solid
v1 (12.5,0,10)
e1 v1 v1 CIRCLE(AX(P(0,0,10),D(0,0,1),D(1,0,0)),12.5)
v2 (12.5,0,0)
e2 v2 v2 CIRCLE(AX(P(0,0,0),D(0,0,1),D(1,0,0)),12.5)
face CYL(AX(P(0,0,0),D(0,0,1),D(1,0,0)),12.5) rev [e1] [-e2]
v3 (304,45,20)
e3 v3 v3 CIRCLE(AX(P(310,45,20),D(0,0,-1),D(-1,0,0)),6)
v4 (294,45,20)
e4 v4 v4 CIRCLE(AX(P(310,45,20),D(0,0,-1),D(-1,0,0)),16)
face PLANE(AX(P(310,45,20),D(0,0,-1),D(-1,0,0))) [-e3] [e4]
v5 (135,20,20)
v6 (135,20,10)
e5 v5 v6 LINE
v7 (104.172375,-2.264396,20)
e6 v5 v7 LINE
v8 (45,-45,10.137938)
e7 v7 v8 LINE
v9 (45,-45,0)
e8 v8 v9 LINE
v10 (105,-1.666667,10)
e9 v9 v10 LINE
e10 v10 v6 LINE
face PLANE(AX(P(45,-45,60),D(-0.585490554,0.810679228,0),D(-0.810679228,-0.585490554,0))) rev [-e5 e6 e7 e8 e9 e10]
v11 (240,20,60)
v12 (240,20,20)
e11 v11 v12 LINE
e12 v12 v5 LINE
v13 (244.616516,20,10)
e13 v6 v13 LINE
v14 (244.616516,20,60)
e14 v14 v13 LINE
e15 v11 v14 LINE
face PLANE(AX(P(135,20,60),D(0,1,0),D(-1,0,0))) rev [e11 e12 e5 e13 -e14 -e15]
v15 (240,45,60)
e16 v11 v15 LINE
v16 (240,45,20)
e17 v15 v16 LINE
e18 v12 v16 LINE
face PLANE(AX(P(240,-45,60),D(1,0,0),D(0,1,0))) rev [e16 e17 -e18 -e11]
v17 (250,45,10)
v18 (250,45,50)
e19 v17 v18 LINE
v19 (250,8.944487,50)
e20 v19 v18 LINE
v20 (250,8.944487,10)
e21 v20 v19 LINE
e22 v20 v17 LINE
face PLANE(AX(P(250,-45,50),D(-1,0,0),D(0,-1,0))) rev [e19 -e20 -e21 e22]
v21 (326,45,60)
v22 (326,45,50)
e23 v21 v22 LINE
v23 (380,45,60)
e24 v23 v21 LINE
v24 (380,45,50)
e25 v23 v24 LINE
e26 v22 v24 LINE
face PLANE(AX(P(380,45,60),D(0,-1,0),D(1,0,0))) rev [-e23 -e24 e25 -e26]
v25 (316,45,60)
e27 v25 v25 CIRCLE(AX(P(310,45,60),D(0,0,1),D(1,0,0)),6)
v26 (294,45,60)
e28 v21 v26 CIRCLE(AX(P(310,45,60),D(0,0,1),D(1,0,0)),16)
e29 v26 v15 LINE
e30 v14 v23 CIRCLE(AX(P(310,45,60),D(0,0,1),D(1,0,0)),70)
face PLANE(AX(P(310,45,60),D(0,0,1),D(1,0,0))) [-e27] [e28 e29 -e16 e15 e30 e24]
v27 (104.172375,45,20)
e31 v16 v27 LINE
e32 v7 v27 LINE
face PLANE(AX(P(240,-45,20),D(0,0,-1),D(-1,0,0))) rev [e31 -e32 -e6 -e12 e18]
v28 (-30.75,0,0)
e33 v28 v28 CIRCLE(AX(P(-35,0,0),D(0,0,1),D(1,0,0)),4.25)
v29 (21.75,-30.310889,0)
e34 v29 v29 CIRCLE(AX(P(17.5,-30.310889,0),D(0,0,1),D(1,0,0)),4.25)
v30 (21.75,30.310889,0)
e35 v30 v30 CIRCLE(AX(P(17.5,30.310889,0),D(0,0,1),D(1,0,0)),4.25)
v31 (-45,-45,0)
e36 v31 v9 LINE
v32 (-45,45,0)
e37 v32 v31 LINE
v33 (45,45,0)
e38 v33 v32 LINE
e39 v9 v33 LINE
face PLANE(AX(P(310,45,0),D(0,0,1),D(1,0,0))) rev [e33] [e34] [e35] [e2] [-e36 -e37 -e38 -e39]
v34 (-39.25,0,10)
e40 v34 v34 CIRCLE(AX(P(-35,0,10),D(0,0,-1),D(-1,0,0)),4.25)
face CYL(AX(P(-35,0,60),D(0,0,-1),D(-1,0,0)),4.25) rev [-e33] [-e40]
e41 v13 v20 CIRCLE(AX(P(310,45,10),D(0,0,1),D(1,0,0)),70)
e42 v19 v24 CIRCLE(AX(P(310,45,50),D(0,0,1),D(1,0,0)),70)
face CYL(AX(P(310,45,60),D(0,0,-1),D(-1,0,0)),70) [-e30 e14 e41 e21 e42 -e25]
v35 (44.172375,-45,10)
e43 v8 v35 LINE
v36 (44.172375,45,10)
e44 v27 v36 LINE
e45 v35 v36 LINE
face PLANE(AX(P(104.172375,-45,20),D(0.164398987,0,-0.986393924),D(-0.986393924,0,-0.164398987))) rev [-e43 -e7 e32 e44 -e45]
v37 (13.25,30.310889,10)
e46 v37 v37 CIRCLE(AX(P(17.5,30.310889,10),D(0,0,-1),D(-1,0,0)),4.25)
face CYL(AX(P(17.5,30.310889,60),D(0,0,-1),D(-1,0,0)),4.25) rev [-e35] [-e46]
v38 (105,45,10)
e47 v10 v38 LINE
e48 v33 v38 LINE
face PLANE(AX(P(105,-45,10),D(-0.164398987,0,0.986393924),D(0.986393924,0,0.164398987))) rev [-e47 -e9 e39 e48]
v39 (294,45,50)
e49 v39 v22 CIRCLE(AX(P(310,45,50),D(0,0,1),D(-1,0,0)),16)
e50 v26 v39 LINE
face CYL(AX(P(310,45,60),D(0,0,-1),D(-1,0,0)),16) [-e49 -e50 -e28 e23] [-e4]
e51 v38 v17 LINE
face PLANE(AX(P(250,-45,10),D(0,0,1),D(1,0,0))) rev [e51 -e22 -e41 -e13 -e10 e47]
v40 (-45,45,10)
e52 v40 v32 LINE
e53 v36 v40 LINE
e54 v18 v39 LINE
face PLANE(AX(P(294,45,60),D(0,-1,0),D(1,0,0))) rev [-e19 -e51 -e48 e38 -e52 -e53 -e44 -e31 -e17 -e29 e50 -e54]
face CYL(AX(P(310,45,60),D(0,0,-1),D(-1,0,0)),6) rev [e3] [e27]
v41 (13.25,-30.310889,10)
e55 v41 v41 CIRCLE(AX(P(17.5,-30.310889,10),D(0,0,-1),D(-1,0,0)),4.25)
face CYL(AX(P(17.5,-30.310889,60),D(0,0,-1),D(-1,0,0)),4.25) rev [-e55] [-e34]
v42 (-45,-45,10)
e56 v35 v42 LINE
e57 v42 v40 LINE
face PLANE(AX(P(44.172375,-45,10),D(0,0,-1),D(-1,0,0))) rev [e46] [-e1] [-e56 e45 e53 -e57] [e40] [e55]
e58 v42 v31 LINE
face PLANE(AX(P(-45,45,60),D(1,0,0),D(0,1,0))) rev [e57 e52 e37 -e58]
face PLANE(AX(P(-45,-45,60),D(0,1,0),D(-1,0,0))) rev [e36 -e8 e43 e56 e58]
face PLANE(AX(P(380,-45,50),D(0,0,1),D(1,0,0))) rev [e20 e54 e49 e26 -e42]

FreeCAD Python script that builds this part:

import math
import FreeCAD as App
import Part
import Sketcher


def add_polygon(sketch, points):
    """Adds a closed chain of lines whose ends are joined by coincident constraints."""
    first, n = sketch.GeometryCount, len(points)
    for a, b in zip(points, points[1:] + points[:1]):
        sketch.addGeometry(Part.LineSegment(App.Vector(*a, 0), App.Vector(*b, 0)), False)
    for i in range(n):
        sketch.addConstraint(Sketcher.Constraint("Coincident", first + i, 2, first + (i + 1) % n, 1))

doc = App.newDocument("Part")
params = doc.addObject("Spreadsheet::Sheet", "Params")
for row, (alias, value) in enumerate([
    ("sketch1_diameter", "12 mm"),
    ("sketch1_radius", "16 mm"),
    ("sketch1_radius2", "70 mm"),
    ("sketch1_diameter2", "8.5 mm"),
    ("sketch1_width", "339 mm"),
    ("pad1_length", "60 mm"),
    ("sketch2_width", "32 mm"),
    ("sketch2_width2", "54 mm"),
    ("sketch2_width3", "335 mm"),
    ("sketch2_width4", "145 mm"),
    ("sketch2_width5", "44 mm"),
    ("sketch3_radius", "16 mm"),
    ("sketch3_radius2", "6 mm"),
    ("pocket2_length", "10 mm"),
    ("sketch4_radius", "70 mm"),
    ("sketch4_radius2", "16 mm"),
    ("pocket3_length", "40 mm"),
    ("sketch5_diameter", "25 mm"),
    ("sketch6_diameter", "32 mm"),
    ("sketch6_diameter2", "12 mm"),
    ("pocket5_length", "10 mm"),
], start=1):
    params.set(f"A{row}", alias)
    params.set(f"B{row}", "=" + value)
    params.setAlias(f"B{row}", alias)

body = doc.addObject("PartDesign::Body", "Body")

sketch1 = doc.addObject("Sketcher::SketchObject", "Sketch")
body.addObject(sketch1)
sketch1.AttachmentSupport = (doc.XY_Plane, [""])
sketch1.MapMode = "FlatFace"
sketch1.addGeometry([
    Part.LineSegment(App.Vector(380, 45, 0), App.Vector(326, 45, 0)),
    Part.ArcOfCircle(Part.Circle(App.Vector(310, 45, 0), App.Vector(0, 0, 1), 16), math.radians(0), math.radians(180)),
    Part.LineSegment(App.Vector(294, 45, 0), App.Vector(-45, 45, 0)),
    Part.LineSegment(App.Vector(-45, 45, 0), App.Vector(-45, -45, 0)),
    Part.LineSegment(App.Vector(-45, -45, 0), App.Vector(45, -45, 0)),
    Part.LineSegment(App.Vector(45, -45, 0), App.Vector(135, 20, 0)),
    Part.LineSegment(App.Vector(135, 20, 0), App.Vector(244.616516, 20, 0)),
    Part.ArcOfCircle(Part.Circle(App.Vector(310, 45, 0), App.Vector(0, 0, 1), 70), math.radians(-159.075168), math.radians(0)),
    Part.Circle(App.Vector(17.5, -30.310889, 0), App.Vector(0, 0, 1), 4.25),
    Part.Circle(App.Vector(-35, 0, 0), App.Vector(0, 0, 1), 4.25),
    Part.Circle(App.Vector(17.5, 30.310889, 0), App.Vector(0, 0, 1), 4.25),
    Part.Circle(App.Vector(310, 45, 0), App.Vector(0, 0, 1), 6),
], False)
sketch1.addConstraint([
    Sketcher.Constraint("Coincident", 0, 2, 1, 1),
    Sketcher.Constraint("Coincident", 1, 2, 2, 1),
    Sketcher.Constraint("Coincident", 2, 2, 3, 1),
    Sketcher.Constraint("Coincident", 3, 2, 4, 1),
    Sketcher.Constraint("Coincident", 4, 2, 5, 1),
    Sketcher.Constraint("Coincident", 5, 2, 6, 1),
    Sketcher.Constraint("Coincident", 6, 2, 7, 1),
    Sketcher.Constraint("Coincident", 7, 2, 0, 1),
    Sketcher.Constraint("Horizontal", 0),
    Sketcher.Constraint("Horizontal", 2),
    Sketcher.Constraint("Vertical", 3),
    Sketcher.Constraint("Horizontal", 4),
    Sketcher.Constraint("Horizontal", 6),
    Sketcher.Constraint("Coincident", 7, 3, 1, 3),
    Sketcher.Constraint("Coincident", 11, 3, 1, 3),
    Sketcher.Constraint("Equal", 8, 9),
    Sketcher.Constraint("Equal", 9, 10),
    Sketcher.Constraint("Symmetric", 2, 2, 4, 2, -1, 1),
    Sketcher.Constraint("Symmetric", 8, 3, 10, 3, -1),
    Sketcher.Constraint("PointOnObject", 9, 3, -1),
    Sketcher.Constraint("Horizontal", 11, 3, 0, 2),
    Sketcher.Constraint("Horizontal", 0, 2, 1, 2),
    Sketcher.Constraint("Equal", 4, 3),
    Sketcher.Constraint("Diameter", 11, 12.0),
    Sketcher.Constraint("Radius", 1, 16.0),
    Sketcher.Constraint("Radius", 7, 70.0),
    Sketcher.Constraint("Diameter", 8, 8.5),
    Sketcher.Constraint("DistanceX", 2, 2, 2, 1, 339.0),
    Sketcher.Constraint("DistanceX", 4, 1, 4, 2, 90.0),
    Sketcher.Constraint("DistanceX", 9, 3, -1, 1, 35.0),
    Sketcher.Constraint("DistanceX", -1, 1, 5, 2, 135.0),
    Sketcher.Constraint("DistanceY", -1, 1, 5, 2, 20.0),
    Sketcher.Constraint("DistanceX", -1, 1, 8, 3, 17.5),
    Sketcher.Constraint("DistanceY", 8, 3, -1, 1, 30.310889),
])
sketch1.setExpression("Constraints[23]", "Params.sketch1_diameter")
sketch1.setExpression("Constraints[24]", "Params.sketch1_radius")
sketch1.setExpression("Constraints[25]", "Params.sketch1_radius2")
sketch1.setExpression("Constraints[26]", "Params.sketch1_diameter2")
sketch1.setExpression("Constraints[27]", "Params.sketch1_width")
pad1 = doc.addObject("PartDesign::Pad", "Pad")
body.addObject(pad1)
pad1.Profile = sketch1
pad1.setExpression("Length", "Params.pad1_length")

sketch2 = doc.addObject("Sketcher::SketchObject", "Sketch001")
body.addObject(sketch2)
sketch2.AttachmentSupport = (doc.XZ_Plane, [""])
sketch2.MapMode = "FlatFace"
sketch2.AttachmentOffset = App.Placement(App.Vector(0, 0, -45), App.Rotation())
add_polygon(sketch2, [(294, 50), (294, 10), (326, 10), (326, 50), (380, 50), (380, 0), (45, 0), (105, 10), (250, 10), (250, 50)])
add_polygon(sketch2, [(240, 60), (240, 20), (104.172375, 20), (44.172375, 10), (-45, 10), (-45, 60)])
sketch2.addConstraint([
    Sketcher.Constraint("Vertical", 0),
    Sketcher.Constraint("Horizontal", 1),
    Sketcher.Constraint("Vertical", 2),
    Sketcher.Constraint("Horizontal", 3),
    Sketcher.Constraint("Vertical", 4),
    Sketcher.Constraint("Horizontal", 5),
    Sketcher.Constraint("Horizontal", 7),
    Sketcher.Constraint("Vertical", 8),
    Sketcher.Constraint("Horizontal", 9),
    Sketcher.Constraint("Vertical", 10),
    Sketcher.Constraint("Horizontal", 11),
    Sketcher.Constraint("Horizontal", 13),
    Sketcher.Constraint("Vertical", 14),
    Sketcher.Constraint("Horizontal", 15),
    Sketcher.Constraint("PointOnObject", 4, 2, -1),
    Sketcher.Constraint("Parallel", 6, 12),
    Sketcher.Constraint("Horizontal", 1, 2, 6, 2),
    Sketcher.Constraint("Horizontal", 3, 2, 8, 2),
    Sketcher.Constraint("Horizontal", 7, 2, 12, 2),
    Sketcher.Constraint("Equal", 8, 10),
    Sketcher.Constraint("Equal", 4, 14),
    Sketcher.Constraint("DistanceX", 1, 1, 1, 2, 32.0),
    Sketcher.Constraint("DistanceX", 3, 1, 3, 2, 54.0),
    Sketcher.Constraint("DistanceX", 5, 2, 5, 1, 335.0),
    Sketcher.Constraint("DistanceX", 7, 1, 7, 2, 145.0),
    Sketcher.Constraint("DistanceX", 9, 1, 9, 2, 44.0),
    Sketcher.Constraint("DistanceX", 15, 1, 15, 2, 285.0),
    Sketcher.Constraint("DistanceY", 0, 2, 0, 1, 40.0),
    Sketcher.Constraint("DistanceY", 4, 2, 4, 1, 50.0),
    Sketcher.Constraint("DistanceX", -1, 1, 0, 2, 294.0),
    Sketcher.Constraint("DistanceX", -1, 1, 10, 2, 240.0),
    Sketcher.Constraint("DistanceX", 11, 2, 11, 1, 135.827625),
])
sketch2.setExpression("Constraints[37]", "Params.sketch2_width")
sketch2.setExpression("Constraints[38]", "Params.sketch2_width2")
sketch2.setExpression("Constraints[39]", "Params.sketch2_width3")
sketch2.setExpression("Constraints[40]", "Params.sketch2_width4")
sketch2.setExpression("Constraints[41]", "Params.sketch2_width5")
pocket1 = doc.addObject("PartDesign::Pocket", "Pocket")
body.addObject(pocket1)
pocket1.Profile = sketch2
pocket1.Type = "ThroughAll"
pocket1.Reversed = True

sketch3 = doc.addObject("Sketcher::SketchObject", "Sketch002")
body.addObject(sketch3)
sketch3.AttachmentSupport = (doc.XY_Plane, [""])
sketch3.MapMode = "FlatFace"
sketch3.addGeometry([
    Part.LineSegment(App.Vector(304, 45, 0), App.Vector(294, 45, 0)),
    Part.ArcOfCircle(Part.Circle(App.Vector(310, 45, 0), App.Vector(0, 0, 1), 16), math.radians(0), math.radians(180)),
    Part.LineSegment(App.Vector(326, 45, 0), App.Vector(316, 45, 0)),
    Part.ArcOfCircle(Part.Circle(App.Vector(310, 45, 0), App.Vector(0, 0, 1), 6), math.radians(0), math.radians(180)),
], False)
sketch3.addConstraint([
    Sketcher.Constraint("Coincident", 0, 2, 1, 2),
    Sketcher.Constraint("Coincident", 1, 1, 2, 1),
    Sketcher.Constraint("Coincident", 2, 2, 3, 1),
    Sketcher.Constraint("Coincident", 3, 2, 0, 1),
    Sketcher.Constraint("Horizontal", 0),
    Sketcher.Constraint("Horizontal", 2),
    Sketcher.Constraint("Coincident", 3, 3, 1, 3),
    Sketcher.Constraint("Horizontal", 3, 3, 0, 2),
    Sketcher.Constraint("Horizontal", 0, 2, 1, 1),
    Sketcher.Constraint("Radius", 1, 16.0),
    Sketcher.Constraint("Radius", 3, 6.0),
    Sketcher.Constraint("DistanceX", -1, 1, 1, 3, 310.0),
    Sketcher.Constraint("DistanceY", -1, 1, 1, 3, 45.0),
])
sketch3.setExpression("Constraints[9]", "Params.sketch3_radius")
sketch3.setExpression("Constraints[10]", "Params.sketch3_radius2")
pocket2 = doc.addObject("PartDesign::Pocket", "Pocket001")
body.addObject(pocket2)
pocket2.Profile = sketch3
pocket2.setExpression("Length", "Params.pocket2_length")
pocket2.Reversed = True

sketch4 = doc.addObject("Sketcher::SketchObject", "Sketch003")
body.addObject(sketch4)
sketch4.AttachmentSupport = (doc.XY_Plane, [""])
sketch4.MapMode = "FlatFace"
sketch4.AttachmentOffset = App.Placement(App.Vector(0, 0, 10), App.Rotation())
sketch4.addGeometry([
    Part.ArcOfCircle(Part.Circle(App.Vector(310, 45, 0), App.Vector(0, 0, 1), 70), math.radians(-103.21298), math.radians(-76.78702)),
    Part.LineSegment(App.Vector(294, -23.1469, 0), App.Vector(294, 45, 0)),
    Part.ArcOfCircle(Part.Circle(App.Vector(310, 45, 0), App.Vector(0, 0, 1), 16), math.radians(180), math.radians(360)),
    Part.LineSegment(App.Vector(326, 45, 0), App.Vector(326, -23.1469, 0)),
], False)
sketch4.addConstraint([
    Sketcher.Constraint("Coincident", 0, 1, 1, 1),
    Sketcher.Constraint("Tangent", 1, 2, 2, 1),
    Sketcher.Constraint("Tangent", 2, 2, 3, 1),
    Sketcher.Constraint("Coincident", 3, 2, 0, 2),
    Sketcher.Constraint("Vertical", 1),
    Sketcher.Constraint("Vertical", 3),
    Sketcher.Constraint("Coincident", 2, 3, 0, 3),
    Sketcher.Constraint("Radius", 0, 70.0),
    Sketcher.Constraint("Radius", 2, 16.0),
    Sketcher.Constraint("DistanceX", -1, 1, 0, 3, 310.0),
    Sketcher.Constraint("DistanceY", -1, 1, 0, 3, 45.0),
])
sketch4.setExpression("Constraints[7]", "Params.sketch4_radius")
sketch4.setExpression("Constraints[8]", "Params.sketch4_radius2")
pocket3 = doc.addObject("PartDesign::Pocket", "Pocket002")
body.addObject(pocket3)
pocket3.Profile = sketch4
pocket3.setExpression("Length", "Params.pocket3_length")
pocket3.Reversed = True

sketch5 = doc.addObject("Sketcher::SketchObject", "Sketch004")
body.addObject(sketch5)
sketch5.AttachmentSupport = (doc.XY_Plane, [""])
sketch5.MapMode = "FlatFace"
sketch5.AttachmentOffset = App.Placement(App.Vector(0, 0, 10), App.Rotation())
sketch5.addGeometry(Part.Circle(App.Vector(0, 0, 0), App.Vector(0, 0, 1), 12.5), False)
sketch5.addConstraint([
    Sketcher.Constraint("Coincident", 0, 3, -1, 1),
    Sketcher.Constraint("Diameter", 0, 25.0),
])
sketch5.setExpression("Constraints[1]", "Params.sketch5_diameter")
pocket4 = doc.addObject("PartDesign::Pocket", "Pocket003")
body.addObject(pocket4)
pocket4.Profile = sketch5
pocket4.Type = "ThroughAll"

sketch6 = doc.addObject("Sketcher::SketchObject", "Sketch005")
body.addObject(sketch6)
sketch6.AttachmentSupport = (doc.XY_Plane, [""])
sketch6.MapMode = "FlatFace"
sketch6.AttachmentOffset = App.Placement(App.Vector(0, 0, 10), App.Rotation())
sketch6.addGeometry([
    Part.Circle(App.Vector(310, 45, 0), App.Vector(0, 0, 1), 16),
    Part.Circle(App.Vector(310, 45, 0), App.Vector(0, 0, 1), 6),
], False)
sketch6.addConstraint([
    Sketcher.Constraint("Coincident", 1, 3, 0, 3),
    Sketcher.Constraint("Diameter", 0, 32.0),
    Sketcher.Constraint("Diameter", 1, 12.0),
    Sketcher.Constraint("DistanceX", -1, 1, 0, 3, 310.0),
    Sketcher.Constraint("DistanceY", -1, 1, 0, 3, 45.0),
])
sketch6.setExpression("Constraints[1]", "Params.sketch6_diameter")
sketch6.setExpression("Constraints[2]", "Params.sketch6_diameter2")
pocket5 = doc.addObject("PartDesign::Pocket", "Pocket004")
body.addObject(pocket5)
pocket5.Profile = sketch6
pocket5.setExpression("Length", "Params.pocket5_length")
pocket5.Reversed = True

doc.recompute()
